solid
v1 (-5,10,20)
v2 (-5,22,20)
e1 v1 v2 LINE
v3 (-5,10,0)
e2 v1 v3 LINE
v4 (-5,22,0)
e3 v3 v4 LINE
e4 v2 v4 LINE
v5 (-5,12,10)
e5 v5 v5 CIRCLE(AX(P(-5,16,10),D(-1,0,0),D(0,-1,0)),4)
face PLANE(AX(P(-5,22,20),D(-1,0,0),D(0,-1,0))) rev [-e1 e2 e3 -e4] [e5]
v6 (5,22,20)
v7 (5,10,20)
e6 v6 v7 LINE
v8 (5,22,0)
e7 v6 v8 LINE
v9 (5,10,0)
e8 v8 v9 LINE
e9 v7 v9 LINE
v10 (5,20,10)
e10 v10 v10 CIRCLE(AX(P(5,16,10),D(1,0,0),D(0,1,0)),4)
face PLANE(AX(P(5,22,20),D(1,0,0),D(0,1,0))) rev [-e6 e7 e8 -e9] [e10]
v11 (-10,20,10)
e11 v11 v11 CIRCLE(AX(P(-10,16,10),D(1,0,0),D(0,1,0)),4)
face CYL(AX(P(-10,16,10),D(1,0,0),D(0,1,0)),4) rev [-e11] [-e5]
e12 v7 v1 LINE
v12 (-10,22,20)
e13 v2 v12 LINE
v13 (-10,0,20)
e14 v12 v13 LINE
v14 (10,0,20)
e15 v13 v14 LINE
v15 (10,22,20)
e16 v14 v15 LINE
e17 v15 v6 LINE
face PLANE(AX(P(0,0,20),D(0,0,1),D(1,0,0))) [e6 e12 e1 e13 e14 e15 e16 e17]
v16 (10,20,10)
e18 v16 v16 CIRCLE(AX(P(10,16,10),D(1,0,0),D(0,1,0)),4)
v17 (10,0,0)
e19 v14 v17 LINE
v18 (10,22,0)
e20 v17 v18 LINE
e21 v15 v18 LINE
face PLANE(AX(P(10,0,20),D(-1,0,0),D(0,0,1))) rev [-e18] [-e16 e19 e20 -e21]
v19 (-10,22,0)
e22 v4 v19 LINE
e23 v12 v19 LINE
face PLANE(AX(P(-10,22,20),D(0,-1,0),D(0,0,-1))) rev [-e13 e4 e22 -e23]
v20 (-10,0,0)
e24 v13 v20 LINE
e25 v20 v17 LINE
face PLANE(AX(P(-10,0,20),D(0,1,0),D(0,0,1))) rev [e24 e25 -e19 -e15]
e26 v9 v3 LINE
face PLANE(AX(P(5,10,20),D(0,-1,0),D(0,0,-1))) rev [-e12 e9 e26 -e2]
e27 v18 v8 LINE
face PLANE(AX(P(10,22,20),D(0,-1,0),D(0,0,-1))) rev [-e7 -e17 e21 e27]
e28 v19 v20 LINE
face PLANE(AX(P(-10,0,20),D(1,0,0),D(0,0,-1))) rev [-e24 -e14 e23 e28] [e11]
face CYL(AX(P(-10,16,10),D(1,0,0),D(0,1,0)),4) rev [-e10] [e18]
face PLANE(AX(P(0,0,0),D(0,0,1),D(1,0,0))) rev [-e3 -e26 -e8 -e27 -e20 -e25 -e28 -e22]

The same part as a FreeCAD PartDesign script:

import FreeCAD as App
import Part
import Sketcher

V = App.Vector

doc = App.newDocument("Part")
body = doc.addObject("PartDesign::Body", "Body")

# Sketch on XY plane
sketch1 = body.newObject("Sketcher::SketchObject", "Sketch")
sketch1.AttachmentSupport = (doc.getObject("XY_Plane"), [""])
sketch1.MapMode = "FlatFace"
sketch1.addGeometry(Part.LineSegment(V(-10, 0, 0), V(10, 0, 0)), False)
sketch1.addGeometry(Part.LineSegment(V(10, 0, 0), V(10, 22, 0)), False)
sketch1.addGeometry(Part.LineSegment(V(10, 22, 0), V(5, 22, 0)), False)
sketch1.addGeometry(Part.LineSegment(V(5, 22, 0), V(5, 10, 0)), False)
sketch1.addGeometry(Part.LineSegment(V(5, 10, 0), V(-5, 10, 0)), False)
sketch1.addGeometry(Part.LineSegment(V(-5, 10, 0), V(-5, 22, 0)), False)
sketch1.addGeometry(Part.LineSegment(V(-5, 22, 0), V(-10, 22, 0)), False)
sketch1.addGeometry(Part.LineSegment(V(-10, 22, 0), V(-10, 0, 0)), False)
sketch1.addConstraint(Sketcher.Constraint("Coincident", 0, 2, 1, 1))
sketch1.addConstraint(Sketcher.Constraint("Coincident", 1, 2, 2, 1))
sketch1.addConstraint(Sketcher.Constraint("Coincident", 2, 2, 3, 1))
sketch1.addConstraint(Sketcher.Constraint("Coincident", 3, 2, 4, 1))
sketch1.addConstraint(Sketcher.Constraint("Coincident", 4, 2, 5, 1))
sketch1.addConstraint(Sketcher.Constraint("Coincident", 5, 2, 6, 1))
sketch1.addConstraint(Sketcher.Constraint("Coincident", 6, 2, 7, 1))
sketch1.addConstraint(Sketcher.Constraint("Coincident", 7, 2, 0, 1))
sketch1.addConstraint(Sketcher.Constraint("Horizontal", 0))
sketch1.addConstraint(Sketcher.Constraint("Vertical", 1))
sketch1.addConstraint(Sketcher.Constraint("Horizontal", 2))
sketch1.addConstraint(Sketcher.Constraint("Vertical", 3))
sketch1.addConstraint(Sketcher.Constraint("Horizontal", 4))
sketch1.addConstraint(Sketcher.Constraint("Vertical", 5))
sketch1.addConstraint(Sketcher.Constraint("Horizontal", 6))
sketch1.addConstraint(Sketcher.Constraint("Vertical", 7))
sketch1.addConstraint(Sketcher.Constraint("Symmetric", 0, 2, 7, 2, -1, 1))
sketch1.addConstraint(Sketcher.Constraint("Symmetric", 2, 2, 5, 2, -2))
sketch1.addConstraint(Sketcher.Constraint("DistanceX", 0, 1, 0, 2, 20.0))
sketch1.addConstraint(Sketcher.Constraint("DistanceX", 2, 2, 2, 1, 5.0))
sketch1.addConstraint(Sketcher.Constraint("DistanceY", 1, 1, 1, 2, 22.0))
sketch1.addConstraint(Sketcher.Constraint("DistanceY", 3, 2, 3, 1, 12.0))
pad1 = body.newObject("PartDesign::Pad", "Pad")
pad1.Profile = sketch1
pad1.Length = 20

# Sketch on YZ plane
sketch2 = body.newObject("Sketcher::SketchObject", "Sketch001")
sketch2.AttachmentSupport = (doc.getObject("YZ_Plane"), [""])
sketch2.MapMode = "FlatFace"
sketch2.AttachmentOffset = App.Placement(V(0, 0, -5), App.Rotation())
sketch2.addGeometry(Part.Circle(V(16, 10, 0), V(0, 0, 1), 4), False)
sketch2.addConstraint(Sketcher.Constraint("Diameter", 0, 8.0))
sketch2.addConstraint(Sketcher.Constraint("DistanceX", -1, 1, 0, 3, 16.0))
sketch2.addConstraint(Sketcher.Constraint("DistanceY", -1, 1, 0, 3, 10.0))
pocket1 = body.newObject("PartDesign::Pocket", "Pocket")
pocket1.Profile = sketch2
pocket1.Type = "ThroughAll"
pocket1.Midplane = True

doc.recompute()
